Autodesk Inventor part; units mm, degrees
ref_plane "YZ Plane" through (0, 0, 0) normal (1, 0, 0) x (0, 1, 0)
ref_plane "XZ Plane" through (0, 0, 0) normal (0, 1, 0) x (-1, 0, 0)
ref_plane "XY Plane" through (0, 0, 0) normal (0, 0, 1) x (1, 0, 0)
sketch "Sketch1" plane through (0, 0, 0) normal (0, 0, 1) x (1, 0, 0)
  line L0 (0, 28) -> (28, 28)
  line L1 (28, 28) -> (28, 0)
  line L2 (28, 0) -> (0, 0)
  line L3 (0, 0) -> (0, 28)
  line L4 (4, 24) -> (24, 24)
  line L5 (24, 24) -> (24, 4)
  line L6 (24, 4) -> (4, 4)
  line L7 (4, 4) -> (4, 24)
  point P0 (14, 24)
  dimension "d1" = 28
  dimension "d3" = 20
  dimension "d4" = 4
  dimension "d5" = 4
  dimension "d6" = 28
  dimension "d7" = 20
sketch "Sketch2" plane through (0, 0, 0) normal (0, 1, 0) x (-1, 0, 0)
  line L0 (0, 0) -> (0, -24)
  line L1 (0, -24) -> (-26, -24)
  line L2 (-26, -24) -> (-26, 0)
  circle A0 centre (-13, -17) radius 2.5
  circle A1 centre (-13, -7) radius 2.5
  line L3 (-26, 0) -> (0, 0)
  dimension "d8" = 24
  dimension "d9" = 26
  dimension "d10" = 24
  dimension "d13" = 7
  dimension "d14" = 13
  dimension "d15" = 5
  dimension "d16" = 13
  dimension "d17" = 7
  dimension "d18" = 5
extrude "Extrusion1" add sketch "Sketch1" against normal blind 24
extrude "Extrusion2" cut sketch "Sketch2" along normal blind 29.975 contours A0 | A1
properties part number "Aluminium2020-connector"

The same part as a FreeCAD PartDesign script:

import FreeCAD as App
import Part
import Sketcher


def add_polygon(sketch, points):
    """Adds a closed chain of lines whose ends are joined by coincident constraints."""
    first, n = sketch.GeometryCount, len(points)
    for a, b in zip(points, points[1:] + points[:1]):
        sketch.addGeometry(Part.LineSegment(App.Vector(*a, 0), App.Vector(*b, 0)), False)
    for i in range(n):
        sketch.addConstraint(Sketcher.Constraint("Coincident", first + i, 2, first + (i + 1) % n, 1))

doc = App.newDocument("Part")
params = doc.addObject("Spreadsheet::Sheet", "Params")
for row, (alias, value) in enumerate([
    ("sketch1_width", "28 mm"),
    ("sketch1_width2", "20 mm"),
    ("pad1_length", "24 mm"),
    ("sketch2_diameter", "5 mm"),
    ("pocket1_length", "29.975 mm"),
], start=1):
    params.set(f"A{row}", alias)
    params.set(f"B{row}", "=" + value)
    params.setAlias(f"B{row}", alias)

body = doc.addObject("PartDesign::Body", "Body")

# Sketch on XY plane
sketch1 = body.newObject("Sketcher::SketchObject", "Sketch")
sketch1.AttachmentSupport = (doc.getObject("XY_Plane"), [""])
sketch1.MapMode = "FlatFace"
add_polygon(sketch1, [(28, 28), (0, 28), (0, 0), (28, 0)])  # lines 0-3
add_polygon(sketch1, [(4, 4), (4, 24), (24, 24), (24, 4)])  # lines 4-7
sketch1.addConstraint([
    Sketcher.Constraint("Horizontal", 0),
    Sketcher.Constraint("Vertical", 1),
    Sketcher.Constraint("Horizontal", 2),
    Sketcher.Constraint("Vertical", 3),
    Sketcher.Constraint("Vertical", 4),
    Sketcher.Constraint("Horizontal", 5),
    Sketcher.Constraint("Vertical", 6),
    Sketcher.Constraint("Horizontal", 7),
    Sketcher.Constraint("Coincident", 1, 2, -1, 1),
    Sketcher.Constraint("Equal", 2, 1),
    Sketcher.Constraint("Equal", 7, 4),
    Sketcher.Constraint("DistanceX", 0, 2, 0, 1, 28.0),
    Sketcher.Constraint("DistanceX", 5, 1, 5, 2, 20.0),
    Sketcher.Constraint("DistanceX", -1, 1, 4, 2, 4.0),
    Sketcher.Constraint("DistanceY", -1, 1, 6, 2, 4.0),
])
sketch1.setExpression("Constraints[19]", "Params.sketch1_width")
sketch1.setExpression("Constraints[20]", "Params.sketch1_width2")
pad1 = body.newObject("PartDesign::Pad", "Pad")
pad1.Profile = sketch1
pad1.setExpression("Length", "Params.pad1_length")
pad1.Reversed = True

# Sketch on XZ plane
sketch2 = body.newObject("Sketcher::SketchObject", "Sketch001")
sketch2.AttachmentSupport = (doc.getObject("XZ_Plane"), [""])
sketch2.MapMode = "FlatFace"
sketch2.addGeometry([
    Part.Circle(App.Vector(13, -17, 0), App.Vector(0, 0, 1), 2.5),
    Part.Circle(App.Vector(13, -7, 0), App.Vector(0, 0, 1), 2.5),
], False)
sketch2.addConstraint([
    Sketcher.Constraint("Equal", 0, 1),
    Sketcher.Constraint("Vertical", 0, 3, 1, 3),
    Sketcher.Constraint("Diameter", 0, 5.0),
    Sketcher.Constraint("DistanceX", -1, 1, 0, 3, 13.0),
    Sketcher.Constraint("DistanceY", 1, 3, -1, 1, 7.0),
    Sketcher.Constraint("DistanceY", 0, 3, -1, 1, 17.0),
])
sketch2.setExpression("Constraints[2]", "Params.sketch2_diameter")
pocket1 = body.newObject("PartDesign::Pocket", "Pocket")
pocket1.Profile = sketch2
pocket1.setExpression("Length", "Params.pocket1_length")

doc.recompute()
